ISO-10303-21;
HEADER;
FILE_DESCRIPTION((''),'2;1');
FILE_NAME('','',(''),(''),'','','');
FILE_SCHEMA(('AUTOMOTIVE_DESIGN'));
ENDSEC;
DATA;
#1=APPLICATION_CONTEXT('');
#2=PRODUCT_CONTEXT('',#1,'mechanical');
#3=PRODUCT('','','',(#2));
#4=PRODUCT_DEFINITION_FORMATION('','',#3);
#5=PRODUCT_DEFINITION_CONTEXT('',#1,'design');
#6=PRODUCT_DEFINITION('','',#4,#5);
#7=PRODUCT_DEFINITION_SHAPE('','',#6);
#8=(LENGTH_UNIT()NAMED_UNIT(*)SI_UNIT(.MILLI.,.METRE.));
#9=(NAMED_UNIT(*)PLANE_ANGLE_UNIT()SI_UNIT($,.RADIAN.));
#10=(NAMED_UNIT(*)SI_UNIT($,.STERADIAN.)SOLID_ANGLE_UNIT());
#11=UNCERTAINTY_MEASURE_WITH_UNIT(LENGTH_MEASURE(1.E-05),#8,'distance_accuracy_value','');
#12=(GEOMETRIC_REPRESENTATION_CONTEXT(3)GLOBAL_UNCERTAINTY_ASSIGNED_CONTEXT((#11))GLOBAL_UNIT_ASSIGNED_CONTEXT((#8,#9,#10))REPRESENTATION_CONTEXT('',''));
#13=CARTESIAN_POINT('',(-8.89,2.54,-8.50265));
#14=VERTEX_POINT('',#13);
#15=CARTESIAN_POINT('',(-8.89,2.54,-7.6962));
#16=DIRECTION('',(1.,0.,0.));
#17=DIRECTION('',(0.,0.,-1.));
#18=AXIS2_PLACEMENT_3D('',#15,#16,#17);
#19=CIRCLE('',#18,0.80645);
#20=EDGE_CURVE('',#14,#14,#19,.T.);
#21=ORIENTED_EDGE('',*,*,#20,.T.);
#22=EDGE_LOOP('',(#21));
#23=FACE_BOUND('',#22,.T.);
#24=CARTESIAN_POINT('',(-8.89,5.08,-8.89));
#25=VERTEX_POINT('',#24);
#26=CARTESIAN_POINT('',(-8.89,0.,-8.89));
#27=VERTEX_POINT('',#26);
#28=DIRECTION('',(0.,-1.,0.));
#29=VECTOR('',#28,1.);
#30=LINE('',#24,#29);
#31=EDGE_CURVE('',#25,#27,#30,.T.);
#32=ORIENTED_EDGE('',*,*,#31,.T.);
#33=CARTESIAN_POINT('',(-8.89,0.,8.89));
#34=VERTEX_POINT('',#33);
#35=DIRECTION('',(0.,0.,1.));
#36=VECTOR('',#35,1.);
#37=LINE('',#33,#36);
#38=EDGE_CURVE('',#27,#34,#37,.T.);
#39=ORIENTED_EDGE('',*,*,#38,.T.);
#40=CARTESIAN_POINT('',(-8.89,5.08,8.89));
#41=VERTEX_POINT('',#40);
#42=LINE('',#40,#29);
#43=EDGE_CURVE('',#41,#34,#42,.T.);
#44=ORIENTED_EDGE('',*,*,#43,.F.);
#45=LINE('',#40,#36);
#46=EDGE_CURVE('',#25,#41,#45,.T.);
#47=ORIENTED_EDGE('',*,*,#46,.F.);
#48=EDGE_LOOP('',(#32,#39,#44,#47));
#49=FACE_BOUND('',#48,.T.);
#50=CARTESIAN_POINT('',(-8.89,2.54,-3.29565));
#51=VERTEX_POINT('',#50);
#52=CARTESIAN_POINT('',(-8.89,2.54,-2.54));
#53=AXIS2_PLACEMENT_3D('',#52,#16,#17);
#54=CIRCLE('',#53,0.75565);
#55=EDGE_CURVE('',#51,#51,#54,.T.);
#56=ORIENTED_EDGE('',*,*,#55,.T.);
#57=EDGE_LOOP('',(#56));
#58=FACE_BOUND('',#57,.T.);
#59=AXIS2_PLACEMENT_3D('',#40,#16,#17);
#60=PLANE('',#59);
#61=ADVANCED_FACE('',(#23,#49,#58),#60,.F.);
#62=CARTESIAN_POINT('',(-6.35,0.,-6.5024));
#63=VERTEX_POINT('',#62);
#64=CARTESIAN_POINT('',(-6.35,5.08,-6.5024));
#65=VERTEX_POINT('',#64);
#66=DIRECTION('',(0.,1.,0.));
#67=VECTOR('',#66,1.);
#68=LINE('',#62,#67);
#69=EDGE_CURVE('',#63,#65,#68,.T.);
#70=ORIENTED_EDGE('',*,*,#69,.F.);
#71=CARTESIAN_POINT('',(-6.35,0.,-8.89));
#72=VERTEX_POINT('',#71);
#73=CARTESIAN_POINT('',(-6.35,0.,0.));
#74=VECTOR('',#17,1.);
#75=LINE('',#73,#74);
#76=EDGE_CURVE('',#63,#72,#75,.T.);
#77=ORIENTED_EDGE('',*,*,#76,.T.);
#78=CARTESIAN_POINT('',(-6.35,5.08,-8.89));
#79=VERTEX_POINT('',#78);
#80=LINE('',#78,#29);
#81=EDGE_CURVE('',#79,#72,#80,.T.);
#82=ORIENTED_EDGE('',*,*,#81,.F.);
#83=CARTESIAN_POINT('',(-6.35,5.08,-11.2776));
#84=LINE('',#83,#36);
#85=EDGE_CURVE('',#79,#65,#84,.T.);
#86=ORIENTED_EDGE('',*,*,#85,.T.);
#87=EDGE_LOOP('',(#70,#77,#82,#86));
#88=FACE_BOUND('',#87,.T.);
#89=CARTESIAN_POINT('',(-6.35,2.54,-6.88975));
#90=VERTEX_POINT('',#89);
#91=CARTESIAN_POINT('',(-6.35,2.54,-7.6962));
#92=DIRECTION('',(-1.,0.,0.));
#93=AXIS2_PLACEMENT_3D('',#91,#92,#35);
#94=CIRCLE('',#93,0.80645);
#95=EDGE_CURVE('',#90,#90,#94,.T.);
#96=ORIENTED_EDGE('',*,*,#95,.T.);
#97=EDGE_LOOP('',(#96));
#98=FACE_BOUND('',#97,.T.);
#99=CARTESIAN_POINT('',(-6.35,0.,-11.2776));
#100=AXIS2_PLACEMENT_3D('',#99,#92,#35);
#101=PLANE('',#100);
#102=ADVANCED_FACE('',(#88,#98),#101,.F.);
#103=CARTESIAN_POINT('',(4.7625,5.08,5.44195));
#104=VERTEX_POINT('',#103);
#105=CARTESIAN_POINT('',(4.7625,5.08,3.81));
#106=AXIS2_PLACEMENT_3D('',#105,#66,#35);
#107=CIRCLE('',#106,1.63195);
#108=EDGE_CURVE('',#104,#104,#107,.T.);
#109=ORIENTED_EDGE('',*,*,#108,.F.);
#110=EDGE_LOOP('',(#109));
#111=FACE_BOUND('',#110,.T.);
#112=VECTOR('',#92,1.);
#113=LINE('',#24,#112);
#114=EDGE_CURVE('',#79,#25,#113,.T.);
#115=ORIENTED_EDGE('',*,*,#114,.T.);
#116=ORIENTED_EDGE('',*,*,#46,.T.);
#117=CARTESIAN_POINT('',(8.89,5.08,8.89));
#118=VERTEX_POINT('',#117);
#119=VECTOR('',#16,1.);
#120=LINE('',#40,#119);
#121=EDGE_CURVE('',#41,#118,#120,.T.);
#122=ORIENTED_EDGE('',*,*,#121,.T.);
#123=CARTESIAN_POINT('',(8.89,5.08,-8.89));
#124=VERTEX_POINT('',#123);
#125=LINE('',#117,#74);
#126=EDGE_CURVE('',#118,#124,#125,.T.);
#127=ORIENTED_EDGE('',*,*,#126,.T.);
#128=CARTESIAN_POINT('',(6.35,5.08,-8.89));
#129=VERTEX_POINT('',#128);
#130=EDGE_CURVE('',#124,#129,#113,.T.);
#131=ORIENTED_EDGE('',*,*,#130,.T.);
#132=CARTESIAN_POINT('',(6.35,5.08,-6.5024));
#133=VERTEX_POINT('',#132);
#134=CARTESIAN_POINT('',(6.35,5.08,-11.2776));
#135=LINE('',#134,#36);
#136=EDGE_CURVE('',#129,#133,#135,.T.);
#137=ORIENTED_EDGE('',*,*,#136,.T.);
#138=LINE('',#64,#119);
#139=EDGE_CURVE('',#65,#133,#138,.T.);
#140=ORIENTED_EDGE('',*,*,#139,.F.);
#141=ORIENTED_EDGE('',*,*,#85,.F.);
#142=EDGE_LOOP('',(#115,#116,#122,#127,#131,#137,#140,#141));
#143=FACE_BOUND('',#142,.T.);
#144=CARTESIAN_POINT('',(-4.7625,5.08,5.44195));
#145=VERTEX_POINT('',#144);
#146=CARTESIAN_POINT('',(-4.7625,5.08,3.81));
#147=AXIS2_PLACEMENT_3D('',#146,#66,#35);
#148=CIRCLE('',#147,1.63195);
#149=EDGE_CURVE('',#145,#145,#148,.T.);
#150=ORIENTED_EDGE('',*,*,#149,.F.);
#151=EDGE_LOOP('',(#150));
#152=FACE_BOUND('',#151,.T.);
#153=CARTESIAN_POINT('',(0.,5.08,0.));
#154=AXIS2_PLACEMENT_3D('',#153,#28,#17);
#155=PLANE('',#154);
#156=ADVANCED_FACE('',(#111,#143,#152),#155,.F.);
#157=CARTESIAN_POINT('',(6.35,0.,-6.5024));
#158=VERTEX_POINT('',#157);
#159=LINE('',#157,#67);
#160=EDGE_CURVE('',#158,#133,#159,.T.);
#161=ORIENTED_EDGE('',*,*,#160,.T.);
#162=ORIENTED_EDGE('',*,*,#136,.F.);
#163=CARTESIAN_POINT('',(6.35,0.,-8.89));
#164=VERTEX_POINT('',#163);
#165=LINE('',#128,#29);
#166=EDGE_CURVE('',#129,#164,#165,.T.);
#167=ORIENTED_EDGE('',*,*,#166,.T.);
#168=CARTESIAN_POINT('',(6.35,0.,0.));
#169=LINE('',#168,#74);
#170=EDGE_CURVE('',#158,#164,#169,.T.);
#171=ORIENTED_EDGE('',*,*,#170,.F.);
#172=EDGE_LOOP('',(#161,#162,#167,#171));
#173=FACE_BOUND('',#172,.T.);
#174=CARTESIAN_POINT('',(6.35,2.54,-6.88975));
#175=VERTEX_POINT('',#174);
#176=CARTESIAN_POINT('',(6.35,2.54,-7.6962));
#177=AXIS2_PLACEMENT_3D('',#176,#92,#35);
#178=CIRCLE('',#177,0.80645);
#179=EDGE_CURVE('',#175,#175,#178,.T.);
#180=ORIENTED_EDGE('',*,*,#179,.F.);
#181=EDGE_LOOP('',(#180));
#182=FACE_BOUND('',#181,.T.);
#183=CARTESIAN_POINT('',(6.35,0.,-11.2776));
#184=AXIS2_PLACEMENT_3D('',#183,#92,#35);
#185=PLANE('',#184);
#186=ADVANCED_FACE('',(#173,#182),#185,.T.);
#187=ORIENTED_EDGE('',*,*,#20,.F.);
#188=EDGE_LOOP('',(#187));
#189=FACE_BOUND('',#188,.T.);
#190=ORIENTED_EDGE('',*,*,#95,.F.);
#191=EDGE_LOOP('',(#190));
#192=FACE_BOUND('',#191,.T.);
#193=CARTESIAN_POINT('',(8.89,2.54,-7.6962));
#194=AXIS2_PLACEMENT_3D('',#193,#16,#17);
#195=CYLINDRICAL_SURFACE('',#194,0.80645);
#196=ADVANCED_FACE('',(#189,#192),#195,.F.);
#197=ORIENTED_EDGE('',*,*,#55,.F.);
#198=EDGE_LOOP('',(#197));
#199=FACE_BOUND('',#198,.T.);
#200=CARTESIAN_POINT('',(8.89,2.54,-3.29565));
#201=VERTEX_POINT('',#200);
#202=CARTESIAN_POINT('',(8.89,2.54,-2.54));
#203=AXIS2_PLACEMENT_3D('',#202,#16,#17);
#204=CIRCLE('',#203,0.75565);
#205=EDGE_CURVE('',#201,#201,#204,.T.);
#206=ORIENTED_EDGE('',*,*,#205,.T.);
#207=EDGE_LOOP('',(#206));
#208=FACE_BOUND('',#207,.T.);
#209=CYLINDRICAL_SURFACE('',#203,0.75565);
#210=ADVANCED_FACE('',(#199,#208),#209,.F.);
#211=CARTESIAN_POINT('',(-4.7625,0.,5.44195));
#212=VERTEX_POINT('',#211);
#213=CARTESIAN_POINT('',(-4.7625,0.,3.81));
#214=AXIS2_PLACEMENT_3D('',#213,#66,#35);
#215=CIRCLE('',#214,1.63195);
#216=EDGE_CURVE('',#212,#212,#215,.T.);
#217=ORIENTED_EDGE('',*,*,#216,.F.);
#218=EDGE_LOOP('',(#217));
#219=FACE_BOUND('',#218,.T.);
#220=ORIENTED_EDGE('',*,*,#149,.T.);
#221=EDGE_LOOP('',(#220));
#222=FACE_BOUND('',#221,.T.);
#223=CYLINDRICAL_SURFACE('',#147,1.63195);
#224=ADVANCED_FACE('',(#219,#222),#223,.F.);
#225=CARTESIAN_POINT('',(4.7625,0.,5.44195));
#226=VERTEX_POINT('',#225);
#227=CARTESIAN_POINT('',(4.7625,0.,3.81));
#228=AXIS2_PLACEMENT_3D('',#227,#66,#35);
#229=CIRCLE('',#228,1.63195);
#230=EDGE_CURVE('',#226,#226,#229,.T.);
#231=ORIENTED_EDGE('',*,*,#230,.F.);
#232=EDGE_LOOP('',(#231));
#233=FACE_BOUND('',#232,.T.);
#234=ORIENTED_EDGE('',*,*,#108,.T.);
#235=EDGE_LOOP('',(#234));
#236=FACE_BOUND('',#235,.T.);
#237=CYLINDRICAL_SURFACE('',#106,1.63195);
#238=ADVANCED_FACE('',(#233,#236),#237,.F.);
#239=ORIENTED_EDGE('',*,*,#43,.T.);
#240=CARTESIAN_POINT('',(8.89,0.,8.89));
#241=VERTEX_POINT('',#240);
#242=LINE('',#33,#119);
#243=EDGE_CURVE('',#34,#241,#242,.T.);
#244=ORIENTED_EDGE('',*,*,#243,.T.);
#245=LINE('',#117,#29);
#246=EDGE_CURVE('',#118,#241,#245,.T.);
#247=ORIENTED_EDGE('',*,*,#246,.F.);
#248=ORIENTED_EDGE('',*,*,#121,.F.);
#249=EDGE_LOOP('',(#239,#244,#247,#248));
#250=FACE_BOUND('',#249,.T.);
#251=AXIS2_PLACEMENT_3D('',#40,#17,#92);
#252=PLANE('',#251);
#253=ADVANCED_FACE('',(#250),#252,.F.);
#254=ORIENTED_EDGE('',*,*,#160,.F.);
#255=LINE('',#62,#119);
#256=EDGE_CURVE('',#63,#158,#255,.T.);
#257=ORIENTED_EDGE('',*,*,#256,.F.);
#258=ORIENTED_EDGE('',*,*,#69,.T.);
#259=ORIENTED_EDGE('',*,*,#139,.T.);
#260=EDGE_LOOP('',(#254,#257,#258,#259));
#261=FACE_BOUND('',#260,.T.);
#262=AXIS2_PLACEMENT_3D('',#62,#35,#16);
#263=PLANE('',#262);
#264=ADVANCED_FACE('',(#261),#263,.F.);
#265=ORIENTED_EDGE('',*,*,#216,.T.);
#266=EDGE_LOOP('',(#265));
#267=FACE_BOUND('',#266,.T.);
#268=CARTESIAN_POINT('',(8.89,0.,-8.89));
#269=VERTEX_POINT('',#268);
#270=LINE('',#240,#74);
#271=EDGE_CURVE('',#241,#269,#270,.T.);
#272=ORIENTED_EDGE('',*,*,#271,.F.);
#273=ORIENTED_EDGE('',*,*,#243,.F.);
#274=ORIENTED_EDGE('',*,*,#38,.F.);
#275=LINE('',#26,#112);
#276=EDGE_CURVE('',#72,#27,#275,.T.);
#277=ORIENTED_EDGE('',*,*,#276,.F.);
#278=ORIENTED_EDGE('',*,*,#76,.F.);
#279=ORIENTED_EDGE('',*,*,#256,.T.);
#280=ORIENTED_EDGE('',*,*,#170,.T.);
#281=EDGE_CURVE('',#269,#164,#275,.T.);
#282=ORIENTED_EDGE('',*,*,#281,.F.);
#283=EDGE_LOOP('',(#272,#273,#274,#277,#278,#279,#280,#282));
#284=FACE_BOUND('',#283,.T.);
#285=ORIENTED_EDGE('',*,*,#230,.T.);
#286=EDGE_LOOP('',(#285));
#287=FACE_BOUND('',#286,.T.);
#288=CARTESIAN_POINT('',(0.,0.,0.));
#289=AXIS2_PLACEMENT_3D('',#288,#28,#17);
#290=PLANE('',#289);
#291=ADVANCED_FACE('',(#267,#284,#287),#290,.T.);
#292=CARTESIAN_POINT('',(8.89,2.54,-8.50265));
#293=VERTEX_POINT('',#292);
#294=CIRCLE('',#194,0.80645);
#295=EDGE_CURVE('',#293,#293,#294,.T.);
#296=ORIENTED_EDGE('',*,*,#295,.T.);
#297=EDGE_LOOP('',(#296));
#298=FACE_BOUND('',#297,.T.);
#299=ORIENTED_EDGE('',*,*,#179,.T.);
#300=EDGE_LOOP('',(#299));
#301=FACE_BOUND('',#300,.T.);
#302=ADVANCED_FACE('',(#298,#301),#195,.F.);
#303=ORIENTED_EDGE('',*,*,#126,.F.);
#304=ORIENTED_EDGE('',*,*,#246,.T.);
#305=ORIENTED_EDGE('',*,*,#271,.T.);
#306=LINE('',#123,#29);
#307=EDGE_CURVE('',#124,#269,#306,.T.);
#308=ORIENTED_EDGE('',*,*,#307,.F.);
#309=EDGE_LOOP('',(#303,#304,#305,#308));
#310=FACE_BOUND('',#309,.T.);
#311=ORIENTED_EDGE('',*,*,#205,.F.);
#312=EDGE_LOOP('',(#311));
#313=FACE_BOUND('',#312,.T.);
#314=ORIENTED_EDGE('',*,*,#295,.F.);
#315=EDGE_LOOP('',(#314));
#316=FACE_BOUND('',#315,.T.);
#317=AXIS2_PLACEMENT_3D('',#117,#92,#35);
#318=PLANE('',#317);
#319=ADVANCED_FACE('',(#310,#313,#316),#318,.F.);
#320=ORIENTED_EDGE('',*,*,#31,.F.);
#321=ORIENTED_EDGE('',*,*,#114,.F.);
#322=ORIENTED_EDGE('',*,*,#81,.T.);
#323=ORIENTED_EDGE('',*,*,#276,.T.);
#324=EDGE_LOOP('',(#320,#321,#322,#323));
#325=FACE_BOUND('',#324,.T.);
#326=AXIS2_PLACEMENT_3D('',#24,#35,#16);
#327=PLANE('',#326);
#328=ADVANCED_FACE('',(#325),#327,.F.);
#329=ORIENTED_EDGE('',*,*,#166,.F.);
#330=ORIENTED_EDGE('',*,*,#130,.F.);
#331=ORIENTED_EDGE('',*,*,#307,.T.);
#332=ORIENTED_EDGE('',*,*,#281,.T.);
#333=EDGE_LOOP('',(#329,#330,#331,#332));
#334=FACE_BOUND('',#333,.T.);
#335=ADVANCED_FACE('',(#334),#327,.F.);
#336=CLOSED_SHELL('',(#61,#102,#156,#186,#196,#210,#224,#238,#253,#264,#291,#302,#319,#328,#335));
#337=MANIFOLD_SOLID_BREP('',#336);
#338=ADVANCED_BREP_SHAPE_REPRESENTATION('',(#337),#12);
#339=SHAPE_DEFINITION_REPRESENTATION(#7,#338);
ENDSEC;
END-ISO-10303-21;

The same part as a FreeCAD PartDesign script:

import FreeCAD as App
import Part
import Sketcher
from FreeCAD import Vector
Q = App.Units.Quantity

doc = App.newDocument("Part")
body = doc.addObject("PartDesign::Body", "Body")

# Sketch on XZ plane
sketch1 = body.newObject("Sketcher::SketchObject", "Sketch")
sketch1.AttachmentSupport = (doc.getObject("XZ_Plane"), [""])
sketch1.MapMode = "FlatFace"
sketch1.addGeometry(Part.LineSegment(Vector(-9, -9, 0), Vector(-9, 9, 0)), False)
sketch1.addGeometry(Part.LineSegment(Vector(-9, 9, 0), Vector(9, 9, 0)), False)
sketch1.addGeometry(Part.LineSegment(Vector(9, 9, 0), Vector(9, -9, 0)), False)
sketch1.addGeometry(Part.LineSegment(Vector(9, -9, 0), Vector(-9, -9, 0)), False)
sketch1.addConstraint(Sketcher.Constraint("Coincident", 0, 2, 1, 1))
sketch1.addConstraint(Sketcher.Constraint("Coincident", 1, 2, 2, 1))
sketch1.addConstraint(Sketcher.Constraint("Coincident", 2, 2, 3, 1))
sketch1.addConstraint(Sketcher.Constraint("Coincident", 3, 2, 0, 1))
sketch1.addConstraint(Sketcher.Constraint("Vertical", 0))
sketch1.addConstraint(Sketcher.Constraint("Horizontal", 1))
sketch1.addConstraint(Sketcher.Constraint("Vertical", 2))
sketch1.addConstraint(Sketcher.Constraint("Horizontal", 3))
sketch1.addConstraint(Sketcher.Constraint("Symmetric", 0, 2, 2, 2, -1, 1))
sketch1.addConstraint(Sketcher.Constraint("Equal", 3, 0))
sketch1.addConstraint(Sketcher.Constraint("DistanceX", 1, 1, 1, 2, Q("0.7 in")))
pad1 = body.newObject("PartDesign::Pad", "Pad")
pad1.Profile = sketch1
pad1.Length = Q("0.2 in")
pad1.Reversed = True

# Sketch on XZ plane
sketch2 = body.newObject("Sketcher::SketchObject", "Sketch001")
sketch2.AttachmentSupport = (doc.getObject("XZ_Plane"), [""])
sketch2.MapMode = "FlatFace"
sketch2.AttachmentOffset = App.Placement(Vector(0, 0, -0.2 * 25.4), App.Rotation())
sketch2.addGeometry(Part.LineSegment(Vector(-6.3, -11.3, 0), Vector(-6.3, -6.5, 0)), False)
sketch2.addGeometry(Part.LineSegment(Vector(-6.3, -6.5, 0), Vector(6.3, -6.5, 0)), False)
sketch2.addGeometry(Part.LineSegment(Vector(6.3, -6.5, 0), Vector(6.3, -11.3, 0)), False)
sketch2.addGeometry(Part.LineSegment(Vector(6.3, -11.3, 0), Vector(-6.3, -11.3, 0)), False)
sketch2.addConstraint(Sketcher.Constraint("Coincident", 0, 2, 1, 1))
sketch2.addConstraint(Sketcher.Constraint("Coincident", 1, 2, 2, 1))
sketch2.addConstraint(Sketcher.Constraint("Coincident", 2, 2, 3, 1))
sketch2.addConstraint(Sketcher.Constraint("Coincident", 3, 2, 0, 1))
sketch2.addConstraint(Sketcher.Constraint("Vertical", 0))
sketch2.addConstraint(Sketcher.Constraint("Horizontal", 1))
sketch2.addConstraint(Sketcher.Constraint("Vertical", 2))
sketch2.addConstraint(Sketcher.Constraint("Horizontal", 3))
sketch2.addConstraint(Sketcher.Constraint("DistanceX", 1, 1, 1, 2, Q("0.5 in")))
sketch2.addConstraint(Sketcher.Constraint("DistanceY", 0, 1, 0, 2, Q("0.188 in")))
sketch2.addConstraint(Sketcher.Constraint("DistanceX", 0, 2, -1, 1, Q("0.25 in")))
sketch2.addConstraint(Sketcher.Constraint("DistanceY", 0, 2, -1, 1, Q("0.256 in")))
pocket1 = body.newObject("PartDesign::Pocket", "Pocket")
pocket1.Profile = sketch2
pocket1.Type = "ThroughAll"
pocket1.Reversed = True

# Sketch on XZ plane
sketch3 = body.newObject("Sketcher::SketchObject", "Sketch002")
sketch3.AttachmentSupport = (doc.getObject("XZ_Plane"), [""])
sketch3.MapMode = "FlatFace"
sketch3.AttachmentOffset = App.Placement(Vector(0, 0, -0.2 * 25.4), App.Rotation())
sketch3.addGeometry(Part.Circle(Vector(4.8, 3.8, 0), Vector(0, 0, 1), 1.6), False)
sketch3.addGeometry(Part.Circle(Vector(-4.8, 3.8, 0), Vector(0, 0, 1), 1.6), False)
sketch3.addConstraint(Sketcher.Constraint("Equal", 0, 1))
sketch3.addConstraint(Sketcher.Constraint("Symmetric", 0, 3, 1, 3, -2))
sketch3.addConstraint(Sketcher.Constraint("Diameter", 0, Q("0.1285 in")))
sketch3.addConstraint(Sketcher.Constraint("DistanceY", -1, 1, 0, 3, Q("0.15 in")))
sketch3.addConstraint(Sketcher.Constraint("DistanceX", -1, 1, 0, 3, Q("0.1875 in")))
doc.recompute()
hole = body.newObject("PartDesign::Hole", "Hole")
hole.Profile = sketch3
hole.ThreadType = "None"
hole.Diameter = Q("0.1285 in")
hole.DepthType = "ThroughAll"
hole.Reversed = True

# Sketch on YZ plane
sketch4 = body.newObject("Sketcher::SketchObject", "Sketch003")
sketch4.AttachmentSupport = (doc.getObject("YZ_Plane"), [""])
sketch4.MapMode = "FlatFace"
sketch4.AttachmentOffset = App.Placement(Vector(0, 0, 0.35 * 25.4), App.Rotation())
sketch4.addGeometry(Part.Circle(Vector(2.5, -7.7, 0), Vector(0, 0, 1), 0.8), False)
sketch4.addConstraint(Sketcher.Constraint("Diameter", 0, Q("0.0635 in")))
sketch4.addConstraint(Sketcher.Constraint("DistanceX", -1, 1, 0, 3, Q("0.1 in")))
sketch4.addConstraint(Sketcher.Constraint("DistanceY", 0, 3, -1, 1, Q("0.303 in")))
doc.recompute()
hole2 = body.newObject("PartDesign::Hole", "Hole001")
hole2.Profile = sketch4
hole2.ThreadType = "None"
hole2.Diameter = Q("0.0635 in")
hole2.DepthType = "ThroughAll"

# Sketch on YZ plane
sketch5 = body.newObject("Sketcher::SketchObject", "Sketch004")
sketch5.AttachmentSupport = (doc.getObject("YZ_Plane"), [""])
sketch5.MapMode = "FlatFace"
sketch5.AttachmentOffset = App.Placement(Vector(0, 0, 0.35 * 25.4), App.Rotation())
sketch5.addGeometry(Part.Circle(Vector(2.5, -2.5, 0), Vector(0, 0, 1), 0.8), False)
sketch5.addConstraint(Sketcher.Constraint("Diameter", 0, Q("0.0595 in")))
sketch5.addConstraint(Sketcher.Constraint("DistanceX", -1, 1, 0, 3, Q("0.1 in")))
sketch5.addConstraint(Sketcher.Constraint("DistanceY", 0, 3, -1, 1, Q("0.1 in")))
doc.recompute()
hole3 = body.newObject("PartDesign::Hole", "Hole002")
hole3.Profile = sketch5
hole3.ThreadType = "None"
hole3.Diameter = Q("0.0595 in")
hole3.DepthType = "ThroughAll"

doc.recompute()
